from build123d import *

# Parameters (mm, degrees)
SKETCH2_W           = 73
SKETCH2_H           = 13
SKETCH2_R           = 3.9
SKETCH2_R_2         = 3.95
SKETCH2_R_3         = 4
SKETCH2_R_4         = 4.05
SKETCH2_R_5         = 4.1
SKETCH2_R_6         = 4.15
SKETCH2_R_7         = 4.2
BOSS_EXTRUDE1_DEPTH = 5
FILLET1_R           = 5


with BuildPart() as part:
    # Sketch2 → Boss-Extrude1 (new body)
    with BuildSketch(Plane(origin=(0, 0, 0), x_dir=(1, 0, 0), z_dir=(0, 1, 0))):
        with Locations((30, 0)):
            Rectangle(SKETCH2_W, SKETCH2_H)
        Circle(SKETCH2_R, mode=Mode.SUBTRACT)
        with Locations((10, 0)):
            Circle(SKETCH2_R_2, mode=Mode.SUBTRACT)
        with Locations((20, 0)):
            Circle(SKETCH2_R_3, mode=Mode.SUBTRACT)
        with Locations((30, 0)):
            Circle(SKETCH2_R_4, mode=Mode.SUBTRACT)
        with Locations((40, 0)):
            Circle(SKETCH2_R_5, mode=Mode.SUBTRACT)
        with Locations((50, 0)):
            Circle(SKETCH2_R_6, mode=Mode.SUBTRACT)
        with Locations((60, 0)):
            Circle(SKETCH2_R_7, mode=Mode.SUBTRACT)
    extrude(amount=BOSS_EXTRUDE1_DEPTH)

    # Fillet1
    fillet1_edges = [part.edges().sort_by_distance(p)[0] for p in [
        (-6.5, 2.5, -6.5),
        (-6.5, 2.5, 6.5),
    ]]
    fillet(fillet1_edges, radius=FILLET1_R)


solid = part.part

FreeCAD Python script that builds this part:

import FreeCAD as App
import Part
import Sketcher


def edges_at(feature, points):
    """Names of the edges that pass closest to the given points."""
    edges = feature.Shape.Edges
    near = lambda p: min(range(len(edges)), key=lambda i: edges[i].distToShape(Part.Vertex(*p))[0])
    return sorted({f"Edge{near(p) + 1}" for p in points})

doc = App.newDocument("Part")
params = doc.addObject("Spreadsheet::Sheet", "Params")
for row, (alias, value) in enumerate([
    ("sketch1_diameter", "8 mm"),
    ("sketch1_diameter2", "7.8 mm"),
    ("sketch1_diameter3", "7.9 mm"),
    ("sketch1_diameter4", "8.1 mm"),
    ("sketch1_diameter5", "8.2 mm"),
    ("pad1_length", "5 mm"),
    ("fillet_radius", "5 mm"),
], start=1):
    params.set(f"A{row}", alias)
    params.set(f"B{row}", "=" + value)
    params.setAlias(f"B{row}", alias)

body = doc.addObject("PartDesign::Body", "Body")

# Sketch on XZ plane
sketch1 = doc.addObject("Sketcher::SketchObject", "Sketch")
body.addObject(sketch1)
sketch1.AttachmentSupport = (doc.XZ_Plane, [""])
sketch1.MapMode = "FlatFace"
sketch1.addGeometry(Part.LineSegment(App.Vector(-6.5, -6.5, 0), App.Vector(-6.5, 6.5, 0)), False)
sketch1.addGeometry(Part.LineSegment(App.Vector(-6.5, 6.5, 0), App.Vector(66.5, 6.5, 0)), False)
sketch1.addGeometry(Part.LineSegment(App.Vector(66.5, 6.5, 0), App.Vector(66.5, -6.5, 0)), False)
sketch1.addGeometry(Part.LineSegment(App.Vector(66.5, -6.5, 0), App.Vector(-6.5, -6.5, 0)), False)
sketch1.addGeometry(Part.Circle(App.Vector(0, 0, 0), App.Vector(0, 0, 1), 3.9), False)
sketch1.addGeometry(Part.Circle(App.Vector(10, 0, 0), App.Vector(0, 0, 1), 3.95), False)
sketch1.addGeometry(Part.Circle(App.Vector(20, 0, 0), App.Vector(0, 0, 1), 4), False)
sketch1.addGeometry(Part.Circle(App.Vector(30, 0, 0), App.Vector(0, 0, 1), 4.05), False)
sketch1.addGeometry(Part.Circle(App.Vector(40, 0, 0), App.Vector(0, 0, 1), 4.1), False)
sketch1.addGeometry(Part.Circle(App.Vector(50, 0, 0), App.Vector(0, 0, 1), 4.15), False)
sketch1.addGeometry(Part.Circle(App.Vector(60, 0, 0), App.Vector(0, 0, 1), 4.2), False)
sketch1.addConstraint(Sketcher.Constraint("Coincident", 0, 2, 1, 1))
sketch1.addConstraint(Sketcher.Constraint("Coincident", 1, 2, 2, 1))
sketch1.addConstraint(Sketcher.Constraint("Coincident", 2, 2, 3, 1))
sketch1.addConstraint(Sketcher.Constraint("Coincident", 3, 2, 0, 1))
sketch1.addConstraint(Sketcher.Constraint("Vertical", 0))
sketch1.addConstraint(Sketcher.Constraint("Horizontal", 1))
sketch1.addConstraint(Sketcher.Constraint("Vertical", 2))
sketch1.addConstraint(Sketcher.Constraint("Horizontal", 3))
sketch1.addConstraint(Sketcher.Constraint("Coincident", 4, 3, -1, 1))
sketch1.addConstraint(Sketcher.Constraint("PointOnObject", 5, 3, -1))
sketch1.addConstraint(Sketcher.Constraint("PointOnObject", 6, 3, -1))
sketch1.addConstraint(Sketcher.Constraint("PointOnObject", 7, 3, -1))
sketch1.addConstraint(Sketcher.Constraint("PointOnObject", 8, 3, -1))
sketch1.addConstraint(Sketcher.Constraint("PointOnObject", 9, 3, -1))
sketch1.addConstraint(Sketcher.Constraint("PointOnObject", 10, 3, -1))
sketch1.addConstraint(Sketcher.Constraint("Diameter", 6, 8.0))
sketch1.addConstraint(Sketcher.Constraint("Diameter", 4, 7.8))
sketch1.addConstraint(Sketcher.Constraint("Diameter", 5, 7.9))
sketch1.addConstraint(Sketcher.Constraint("Diameter", 7, 8.1))
sketch1.addConstraint(Sketcher.Constraint("Diameter", 8, 8.2))
sketch1.addConstraint(Sketcher.Constraint("Diameter", 9, 8.3))
sketch1.addConstraint(Sketcher.Constraint("Diameter", 10, 8.4))
sketch1.addConstraint(Sketcher.Constraint("DistanceX", 1, 1, 1, 2, 73.0))
sketch1.addConstraint(Sketcher.Constraint("DistanceY", 0, 1, 0, 2, 13.0))
sketch1.addConstraint(Sketcher.Constraint("DistanceX", -1, 1, 5, 3, 10.0))
sketch1.addConstraint(Sketcher.Constraint("DistanceX", -1, 1, 6, 3, 20.0))
sketch1.addConstraint(Sketcher.Constraint("DistanceX", -1, 1, 7, 3, 30.0))
sketch1.addConstraint(Sketcher.Constraint("DistanceX", -1, 1, 8, 3, 40.0))
sketch1.addConstraint(Sketcher.Constraint("DistanceX", -1, 1, 9, 3, 50.0))
sketch1.addConstraint(Sketcher.Constraint("DistanceX", -1, 1, 10, 3, 60.0))
sketch1.addConstraint(Sketcher.Constraint("DistanceX", 0, 2, -1, 1, 6.5))
sketch1.addConstraint(Sketcher.Constraint("DistanceY", -1, 1, 0, 2, 6.5))
sketch1.setExpression("Constraints[15]", "Params.sketch1_diameter")
sketch1.setExpression("Constraints[16]", "Params.sketch1_diameter2")
sketch1.setExpression("Constraints[17]", "Params.sketch1_diameter3")
sketch1.setExpression("Constraints[18]", "Params.sketch1_diameter4")
sketch1.setExpression("Constraints[19]", "Params.sketch1_diameter5")
pad1 = doc.addObject("PartDesign::Pad", "Pad")
body.addObject(pad1)
pad1.Profile = sketch1
pad1.setExpression("Length", "Params.pad1_length")
pad1.Reversed = True
doc.recompute()

fillet = doc.addObject("PartDesign::Fillet", "Fillet")
body.addObject(fillet)
fillet.Base = (pad1, edges_at(pad1, [(-6.5, 2.5, -6.5), (-6.5, 2.5, 6.5)]))
fillet.setExpression("Radius", "Params.fillet_radius")

doc.recompute()
